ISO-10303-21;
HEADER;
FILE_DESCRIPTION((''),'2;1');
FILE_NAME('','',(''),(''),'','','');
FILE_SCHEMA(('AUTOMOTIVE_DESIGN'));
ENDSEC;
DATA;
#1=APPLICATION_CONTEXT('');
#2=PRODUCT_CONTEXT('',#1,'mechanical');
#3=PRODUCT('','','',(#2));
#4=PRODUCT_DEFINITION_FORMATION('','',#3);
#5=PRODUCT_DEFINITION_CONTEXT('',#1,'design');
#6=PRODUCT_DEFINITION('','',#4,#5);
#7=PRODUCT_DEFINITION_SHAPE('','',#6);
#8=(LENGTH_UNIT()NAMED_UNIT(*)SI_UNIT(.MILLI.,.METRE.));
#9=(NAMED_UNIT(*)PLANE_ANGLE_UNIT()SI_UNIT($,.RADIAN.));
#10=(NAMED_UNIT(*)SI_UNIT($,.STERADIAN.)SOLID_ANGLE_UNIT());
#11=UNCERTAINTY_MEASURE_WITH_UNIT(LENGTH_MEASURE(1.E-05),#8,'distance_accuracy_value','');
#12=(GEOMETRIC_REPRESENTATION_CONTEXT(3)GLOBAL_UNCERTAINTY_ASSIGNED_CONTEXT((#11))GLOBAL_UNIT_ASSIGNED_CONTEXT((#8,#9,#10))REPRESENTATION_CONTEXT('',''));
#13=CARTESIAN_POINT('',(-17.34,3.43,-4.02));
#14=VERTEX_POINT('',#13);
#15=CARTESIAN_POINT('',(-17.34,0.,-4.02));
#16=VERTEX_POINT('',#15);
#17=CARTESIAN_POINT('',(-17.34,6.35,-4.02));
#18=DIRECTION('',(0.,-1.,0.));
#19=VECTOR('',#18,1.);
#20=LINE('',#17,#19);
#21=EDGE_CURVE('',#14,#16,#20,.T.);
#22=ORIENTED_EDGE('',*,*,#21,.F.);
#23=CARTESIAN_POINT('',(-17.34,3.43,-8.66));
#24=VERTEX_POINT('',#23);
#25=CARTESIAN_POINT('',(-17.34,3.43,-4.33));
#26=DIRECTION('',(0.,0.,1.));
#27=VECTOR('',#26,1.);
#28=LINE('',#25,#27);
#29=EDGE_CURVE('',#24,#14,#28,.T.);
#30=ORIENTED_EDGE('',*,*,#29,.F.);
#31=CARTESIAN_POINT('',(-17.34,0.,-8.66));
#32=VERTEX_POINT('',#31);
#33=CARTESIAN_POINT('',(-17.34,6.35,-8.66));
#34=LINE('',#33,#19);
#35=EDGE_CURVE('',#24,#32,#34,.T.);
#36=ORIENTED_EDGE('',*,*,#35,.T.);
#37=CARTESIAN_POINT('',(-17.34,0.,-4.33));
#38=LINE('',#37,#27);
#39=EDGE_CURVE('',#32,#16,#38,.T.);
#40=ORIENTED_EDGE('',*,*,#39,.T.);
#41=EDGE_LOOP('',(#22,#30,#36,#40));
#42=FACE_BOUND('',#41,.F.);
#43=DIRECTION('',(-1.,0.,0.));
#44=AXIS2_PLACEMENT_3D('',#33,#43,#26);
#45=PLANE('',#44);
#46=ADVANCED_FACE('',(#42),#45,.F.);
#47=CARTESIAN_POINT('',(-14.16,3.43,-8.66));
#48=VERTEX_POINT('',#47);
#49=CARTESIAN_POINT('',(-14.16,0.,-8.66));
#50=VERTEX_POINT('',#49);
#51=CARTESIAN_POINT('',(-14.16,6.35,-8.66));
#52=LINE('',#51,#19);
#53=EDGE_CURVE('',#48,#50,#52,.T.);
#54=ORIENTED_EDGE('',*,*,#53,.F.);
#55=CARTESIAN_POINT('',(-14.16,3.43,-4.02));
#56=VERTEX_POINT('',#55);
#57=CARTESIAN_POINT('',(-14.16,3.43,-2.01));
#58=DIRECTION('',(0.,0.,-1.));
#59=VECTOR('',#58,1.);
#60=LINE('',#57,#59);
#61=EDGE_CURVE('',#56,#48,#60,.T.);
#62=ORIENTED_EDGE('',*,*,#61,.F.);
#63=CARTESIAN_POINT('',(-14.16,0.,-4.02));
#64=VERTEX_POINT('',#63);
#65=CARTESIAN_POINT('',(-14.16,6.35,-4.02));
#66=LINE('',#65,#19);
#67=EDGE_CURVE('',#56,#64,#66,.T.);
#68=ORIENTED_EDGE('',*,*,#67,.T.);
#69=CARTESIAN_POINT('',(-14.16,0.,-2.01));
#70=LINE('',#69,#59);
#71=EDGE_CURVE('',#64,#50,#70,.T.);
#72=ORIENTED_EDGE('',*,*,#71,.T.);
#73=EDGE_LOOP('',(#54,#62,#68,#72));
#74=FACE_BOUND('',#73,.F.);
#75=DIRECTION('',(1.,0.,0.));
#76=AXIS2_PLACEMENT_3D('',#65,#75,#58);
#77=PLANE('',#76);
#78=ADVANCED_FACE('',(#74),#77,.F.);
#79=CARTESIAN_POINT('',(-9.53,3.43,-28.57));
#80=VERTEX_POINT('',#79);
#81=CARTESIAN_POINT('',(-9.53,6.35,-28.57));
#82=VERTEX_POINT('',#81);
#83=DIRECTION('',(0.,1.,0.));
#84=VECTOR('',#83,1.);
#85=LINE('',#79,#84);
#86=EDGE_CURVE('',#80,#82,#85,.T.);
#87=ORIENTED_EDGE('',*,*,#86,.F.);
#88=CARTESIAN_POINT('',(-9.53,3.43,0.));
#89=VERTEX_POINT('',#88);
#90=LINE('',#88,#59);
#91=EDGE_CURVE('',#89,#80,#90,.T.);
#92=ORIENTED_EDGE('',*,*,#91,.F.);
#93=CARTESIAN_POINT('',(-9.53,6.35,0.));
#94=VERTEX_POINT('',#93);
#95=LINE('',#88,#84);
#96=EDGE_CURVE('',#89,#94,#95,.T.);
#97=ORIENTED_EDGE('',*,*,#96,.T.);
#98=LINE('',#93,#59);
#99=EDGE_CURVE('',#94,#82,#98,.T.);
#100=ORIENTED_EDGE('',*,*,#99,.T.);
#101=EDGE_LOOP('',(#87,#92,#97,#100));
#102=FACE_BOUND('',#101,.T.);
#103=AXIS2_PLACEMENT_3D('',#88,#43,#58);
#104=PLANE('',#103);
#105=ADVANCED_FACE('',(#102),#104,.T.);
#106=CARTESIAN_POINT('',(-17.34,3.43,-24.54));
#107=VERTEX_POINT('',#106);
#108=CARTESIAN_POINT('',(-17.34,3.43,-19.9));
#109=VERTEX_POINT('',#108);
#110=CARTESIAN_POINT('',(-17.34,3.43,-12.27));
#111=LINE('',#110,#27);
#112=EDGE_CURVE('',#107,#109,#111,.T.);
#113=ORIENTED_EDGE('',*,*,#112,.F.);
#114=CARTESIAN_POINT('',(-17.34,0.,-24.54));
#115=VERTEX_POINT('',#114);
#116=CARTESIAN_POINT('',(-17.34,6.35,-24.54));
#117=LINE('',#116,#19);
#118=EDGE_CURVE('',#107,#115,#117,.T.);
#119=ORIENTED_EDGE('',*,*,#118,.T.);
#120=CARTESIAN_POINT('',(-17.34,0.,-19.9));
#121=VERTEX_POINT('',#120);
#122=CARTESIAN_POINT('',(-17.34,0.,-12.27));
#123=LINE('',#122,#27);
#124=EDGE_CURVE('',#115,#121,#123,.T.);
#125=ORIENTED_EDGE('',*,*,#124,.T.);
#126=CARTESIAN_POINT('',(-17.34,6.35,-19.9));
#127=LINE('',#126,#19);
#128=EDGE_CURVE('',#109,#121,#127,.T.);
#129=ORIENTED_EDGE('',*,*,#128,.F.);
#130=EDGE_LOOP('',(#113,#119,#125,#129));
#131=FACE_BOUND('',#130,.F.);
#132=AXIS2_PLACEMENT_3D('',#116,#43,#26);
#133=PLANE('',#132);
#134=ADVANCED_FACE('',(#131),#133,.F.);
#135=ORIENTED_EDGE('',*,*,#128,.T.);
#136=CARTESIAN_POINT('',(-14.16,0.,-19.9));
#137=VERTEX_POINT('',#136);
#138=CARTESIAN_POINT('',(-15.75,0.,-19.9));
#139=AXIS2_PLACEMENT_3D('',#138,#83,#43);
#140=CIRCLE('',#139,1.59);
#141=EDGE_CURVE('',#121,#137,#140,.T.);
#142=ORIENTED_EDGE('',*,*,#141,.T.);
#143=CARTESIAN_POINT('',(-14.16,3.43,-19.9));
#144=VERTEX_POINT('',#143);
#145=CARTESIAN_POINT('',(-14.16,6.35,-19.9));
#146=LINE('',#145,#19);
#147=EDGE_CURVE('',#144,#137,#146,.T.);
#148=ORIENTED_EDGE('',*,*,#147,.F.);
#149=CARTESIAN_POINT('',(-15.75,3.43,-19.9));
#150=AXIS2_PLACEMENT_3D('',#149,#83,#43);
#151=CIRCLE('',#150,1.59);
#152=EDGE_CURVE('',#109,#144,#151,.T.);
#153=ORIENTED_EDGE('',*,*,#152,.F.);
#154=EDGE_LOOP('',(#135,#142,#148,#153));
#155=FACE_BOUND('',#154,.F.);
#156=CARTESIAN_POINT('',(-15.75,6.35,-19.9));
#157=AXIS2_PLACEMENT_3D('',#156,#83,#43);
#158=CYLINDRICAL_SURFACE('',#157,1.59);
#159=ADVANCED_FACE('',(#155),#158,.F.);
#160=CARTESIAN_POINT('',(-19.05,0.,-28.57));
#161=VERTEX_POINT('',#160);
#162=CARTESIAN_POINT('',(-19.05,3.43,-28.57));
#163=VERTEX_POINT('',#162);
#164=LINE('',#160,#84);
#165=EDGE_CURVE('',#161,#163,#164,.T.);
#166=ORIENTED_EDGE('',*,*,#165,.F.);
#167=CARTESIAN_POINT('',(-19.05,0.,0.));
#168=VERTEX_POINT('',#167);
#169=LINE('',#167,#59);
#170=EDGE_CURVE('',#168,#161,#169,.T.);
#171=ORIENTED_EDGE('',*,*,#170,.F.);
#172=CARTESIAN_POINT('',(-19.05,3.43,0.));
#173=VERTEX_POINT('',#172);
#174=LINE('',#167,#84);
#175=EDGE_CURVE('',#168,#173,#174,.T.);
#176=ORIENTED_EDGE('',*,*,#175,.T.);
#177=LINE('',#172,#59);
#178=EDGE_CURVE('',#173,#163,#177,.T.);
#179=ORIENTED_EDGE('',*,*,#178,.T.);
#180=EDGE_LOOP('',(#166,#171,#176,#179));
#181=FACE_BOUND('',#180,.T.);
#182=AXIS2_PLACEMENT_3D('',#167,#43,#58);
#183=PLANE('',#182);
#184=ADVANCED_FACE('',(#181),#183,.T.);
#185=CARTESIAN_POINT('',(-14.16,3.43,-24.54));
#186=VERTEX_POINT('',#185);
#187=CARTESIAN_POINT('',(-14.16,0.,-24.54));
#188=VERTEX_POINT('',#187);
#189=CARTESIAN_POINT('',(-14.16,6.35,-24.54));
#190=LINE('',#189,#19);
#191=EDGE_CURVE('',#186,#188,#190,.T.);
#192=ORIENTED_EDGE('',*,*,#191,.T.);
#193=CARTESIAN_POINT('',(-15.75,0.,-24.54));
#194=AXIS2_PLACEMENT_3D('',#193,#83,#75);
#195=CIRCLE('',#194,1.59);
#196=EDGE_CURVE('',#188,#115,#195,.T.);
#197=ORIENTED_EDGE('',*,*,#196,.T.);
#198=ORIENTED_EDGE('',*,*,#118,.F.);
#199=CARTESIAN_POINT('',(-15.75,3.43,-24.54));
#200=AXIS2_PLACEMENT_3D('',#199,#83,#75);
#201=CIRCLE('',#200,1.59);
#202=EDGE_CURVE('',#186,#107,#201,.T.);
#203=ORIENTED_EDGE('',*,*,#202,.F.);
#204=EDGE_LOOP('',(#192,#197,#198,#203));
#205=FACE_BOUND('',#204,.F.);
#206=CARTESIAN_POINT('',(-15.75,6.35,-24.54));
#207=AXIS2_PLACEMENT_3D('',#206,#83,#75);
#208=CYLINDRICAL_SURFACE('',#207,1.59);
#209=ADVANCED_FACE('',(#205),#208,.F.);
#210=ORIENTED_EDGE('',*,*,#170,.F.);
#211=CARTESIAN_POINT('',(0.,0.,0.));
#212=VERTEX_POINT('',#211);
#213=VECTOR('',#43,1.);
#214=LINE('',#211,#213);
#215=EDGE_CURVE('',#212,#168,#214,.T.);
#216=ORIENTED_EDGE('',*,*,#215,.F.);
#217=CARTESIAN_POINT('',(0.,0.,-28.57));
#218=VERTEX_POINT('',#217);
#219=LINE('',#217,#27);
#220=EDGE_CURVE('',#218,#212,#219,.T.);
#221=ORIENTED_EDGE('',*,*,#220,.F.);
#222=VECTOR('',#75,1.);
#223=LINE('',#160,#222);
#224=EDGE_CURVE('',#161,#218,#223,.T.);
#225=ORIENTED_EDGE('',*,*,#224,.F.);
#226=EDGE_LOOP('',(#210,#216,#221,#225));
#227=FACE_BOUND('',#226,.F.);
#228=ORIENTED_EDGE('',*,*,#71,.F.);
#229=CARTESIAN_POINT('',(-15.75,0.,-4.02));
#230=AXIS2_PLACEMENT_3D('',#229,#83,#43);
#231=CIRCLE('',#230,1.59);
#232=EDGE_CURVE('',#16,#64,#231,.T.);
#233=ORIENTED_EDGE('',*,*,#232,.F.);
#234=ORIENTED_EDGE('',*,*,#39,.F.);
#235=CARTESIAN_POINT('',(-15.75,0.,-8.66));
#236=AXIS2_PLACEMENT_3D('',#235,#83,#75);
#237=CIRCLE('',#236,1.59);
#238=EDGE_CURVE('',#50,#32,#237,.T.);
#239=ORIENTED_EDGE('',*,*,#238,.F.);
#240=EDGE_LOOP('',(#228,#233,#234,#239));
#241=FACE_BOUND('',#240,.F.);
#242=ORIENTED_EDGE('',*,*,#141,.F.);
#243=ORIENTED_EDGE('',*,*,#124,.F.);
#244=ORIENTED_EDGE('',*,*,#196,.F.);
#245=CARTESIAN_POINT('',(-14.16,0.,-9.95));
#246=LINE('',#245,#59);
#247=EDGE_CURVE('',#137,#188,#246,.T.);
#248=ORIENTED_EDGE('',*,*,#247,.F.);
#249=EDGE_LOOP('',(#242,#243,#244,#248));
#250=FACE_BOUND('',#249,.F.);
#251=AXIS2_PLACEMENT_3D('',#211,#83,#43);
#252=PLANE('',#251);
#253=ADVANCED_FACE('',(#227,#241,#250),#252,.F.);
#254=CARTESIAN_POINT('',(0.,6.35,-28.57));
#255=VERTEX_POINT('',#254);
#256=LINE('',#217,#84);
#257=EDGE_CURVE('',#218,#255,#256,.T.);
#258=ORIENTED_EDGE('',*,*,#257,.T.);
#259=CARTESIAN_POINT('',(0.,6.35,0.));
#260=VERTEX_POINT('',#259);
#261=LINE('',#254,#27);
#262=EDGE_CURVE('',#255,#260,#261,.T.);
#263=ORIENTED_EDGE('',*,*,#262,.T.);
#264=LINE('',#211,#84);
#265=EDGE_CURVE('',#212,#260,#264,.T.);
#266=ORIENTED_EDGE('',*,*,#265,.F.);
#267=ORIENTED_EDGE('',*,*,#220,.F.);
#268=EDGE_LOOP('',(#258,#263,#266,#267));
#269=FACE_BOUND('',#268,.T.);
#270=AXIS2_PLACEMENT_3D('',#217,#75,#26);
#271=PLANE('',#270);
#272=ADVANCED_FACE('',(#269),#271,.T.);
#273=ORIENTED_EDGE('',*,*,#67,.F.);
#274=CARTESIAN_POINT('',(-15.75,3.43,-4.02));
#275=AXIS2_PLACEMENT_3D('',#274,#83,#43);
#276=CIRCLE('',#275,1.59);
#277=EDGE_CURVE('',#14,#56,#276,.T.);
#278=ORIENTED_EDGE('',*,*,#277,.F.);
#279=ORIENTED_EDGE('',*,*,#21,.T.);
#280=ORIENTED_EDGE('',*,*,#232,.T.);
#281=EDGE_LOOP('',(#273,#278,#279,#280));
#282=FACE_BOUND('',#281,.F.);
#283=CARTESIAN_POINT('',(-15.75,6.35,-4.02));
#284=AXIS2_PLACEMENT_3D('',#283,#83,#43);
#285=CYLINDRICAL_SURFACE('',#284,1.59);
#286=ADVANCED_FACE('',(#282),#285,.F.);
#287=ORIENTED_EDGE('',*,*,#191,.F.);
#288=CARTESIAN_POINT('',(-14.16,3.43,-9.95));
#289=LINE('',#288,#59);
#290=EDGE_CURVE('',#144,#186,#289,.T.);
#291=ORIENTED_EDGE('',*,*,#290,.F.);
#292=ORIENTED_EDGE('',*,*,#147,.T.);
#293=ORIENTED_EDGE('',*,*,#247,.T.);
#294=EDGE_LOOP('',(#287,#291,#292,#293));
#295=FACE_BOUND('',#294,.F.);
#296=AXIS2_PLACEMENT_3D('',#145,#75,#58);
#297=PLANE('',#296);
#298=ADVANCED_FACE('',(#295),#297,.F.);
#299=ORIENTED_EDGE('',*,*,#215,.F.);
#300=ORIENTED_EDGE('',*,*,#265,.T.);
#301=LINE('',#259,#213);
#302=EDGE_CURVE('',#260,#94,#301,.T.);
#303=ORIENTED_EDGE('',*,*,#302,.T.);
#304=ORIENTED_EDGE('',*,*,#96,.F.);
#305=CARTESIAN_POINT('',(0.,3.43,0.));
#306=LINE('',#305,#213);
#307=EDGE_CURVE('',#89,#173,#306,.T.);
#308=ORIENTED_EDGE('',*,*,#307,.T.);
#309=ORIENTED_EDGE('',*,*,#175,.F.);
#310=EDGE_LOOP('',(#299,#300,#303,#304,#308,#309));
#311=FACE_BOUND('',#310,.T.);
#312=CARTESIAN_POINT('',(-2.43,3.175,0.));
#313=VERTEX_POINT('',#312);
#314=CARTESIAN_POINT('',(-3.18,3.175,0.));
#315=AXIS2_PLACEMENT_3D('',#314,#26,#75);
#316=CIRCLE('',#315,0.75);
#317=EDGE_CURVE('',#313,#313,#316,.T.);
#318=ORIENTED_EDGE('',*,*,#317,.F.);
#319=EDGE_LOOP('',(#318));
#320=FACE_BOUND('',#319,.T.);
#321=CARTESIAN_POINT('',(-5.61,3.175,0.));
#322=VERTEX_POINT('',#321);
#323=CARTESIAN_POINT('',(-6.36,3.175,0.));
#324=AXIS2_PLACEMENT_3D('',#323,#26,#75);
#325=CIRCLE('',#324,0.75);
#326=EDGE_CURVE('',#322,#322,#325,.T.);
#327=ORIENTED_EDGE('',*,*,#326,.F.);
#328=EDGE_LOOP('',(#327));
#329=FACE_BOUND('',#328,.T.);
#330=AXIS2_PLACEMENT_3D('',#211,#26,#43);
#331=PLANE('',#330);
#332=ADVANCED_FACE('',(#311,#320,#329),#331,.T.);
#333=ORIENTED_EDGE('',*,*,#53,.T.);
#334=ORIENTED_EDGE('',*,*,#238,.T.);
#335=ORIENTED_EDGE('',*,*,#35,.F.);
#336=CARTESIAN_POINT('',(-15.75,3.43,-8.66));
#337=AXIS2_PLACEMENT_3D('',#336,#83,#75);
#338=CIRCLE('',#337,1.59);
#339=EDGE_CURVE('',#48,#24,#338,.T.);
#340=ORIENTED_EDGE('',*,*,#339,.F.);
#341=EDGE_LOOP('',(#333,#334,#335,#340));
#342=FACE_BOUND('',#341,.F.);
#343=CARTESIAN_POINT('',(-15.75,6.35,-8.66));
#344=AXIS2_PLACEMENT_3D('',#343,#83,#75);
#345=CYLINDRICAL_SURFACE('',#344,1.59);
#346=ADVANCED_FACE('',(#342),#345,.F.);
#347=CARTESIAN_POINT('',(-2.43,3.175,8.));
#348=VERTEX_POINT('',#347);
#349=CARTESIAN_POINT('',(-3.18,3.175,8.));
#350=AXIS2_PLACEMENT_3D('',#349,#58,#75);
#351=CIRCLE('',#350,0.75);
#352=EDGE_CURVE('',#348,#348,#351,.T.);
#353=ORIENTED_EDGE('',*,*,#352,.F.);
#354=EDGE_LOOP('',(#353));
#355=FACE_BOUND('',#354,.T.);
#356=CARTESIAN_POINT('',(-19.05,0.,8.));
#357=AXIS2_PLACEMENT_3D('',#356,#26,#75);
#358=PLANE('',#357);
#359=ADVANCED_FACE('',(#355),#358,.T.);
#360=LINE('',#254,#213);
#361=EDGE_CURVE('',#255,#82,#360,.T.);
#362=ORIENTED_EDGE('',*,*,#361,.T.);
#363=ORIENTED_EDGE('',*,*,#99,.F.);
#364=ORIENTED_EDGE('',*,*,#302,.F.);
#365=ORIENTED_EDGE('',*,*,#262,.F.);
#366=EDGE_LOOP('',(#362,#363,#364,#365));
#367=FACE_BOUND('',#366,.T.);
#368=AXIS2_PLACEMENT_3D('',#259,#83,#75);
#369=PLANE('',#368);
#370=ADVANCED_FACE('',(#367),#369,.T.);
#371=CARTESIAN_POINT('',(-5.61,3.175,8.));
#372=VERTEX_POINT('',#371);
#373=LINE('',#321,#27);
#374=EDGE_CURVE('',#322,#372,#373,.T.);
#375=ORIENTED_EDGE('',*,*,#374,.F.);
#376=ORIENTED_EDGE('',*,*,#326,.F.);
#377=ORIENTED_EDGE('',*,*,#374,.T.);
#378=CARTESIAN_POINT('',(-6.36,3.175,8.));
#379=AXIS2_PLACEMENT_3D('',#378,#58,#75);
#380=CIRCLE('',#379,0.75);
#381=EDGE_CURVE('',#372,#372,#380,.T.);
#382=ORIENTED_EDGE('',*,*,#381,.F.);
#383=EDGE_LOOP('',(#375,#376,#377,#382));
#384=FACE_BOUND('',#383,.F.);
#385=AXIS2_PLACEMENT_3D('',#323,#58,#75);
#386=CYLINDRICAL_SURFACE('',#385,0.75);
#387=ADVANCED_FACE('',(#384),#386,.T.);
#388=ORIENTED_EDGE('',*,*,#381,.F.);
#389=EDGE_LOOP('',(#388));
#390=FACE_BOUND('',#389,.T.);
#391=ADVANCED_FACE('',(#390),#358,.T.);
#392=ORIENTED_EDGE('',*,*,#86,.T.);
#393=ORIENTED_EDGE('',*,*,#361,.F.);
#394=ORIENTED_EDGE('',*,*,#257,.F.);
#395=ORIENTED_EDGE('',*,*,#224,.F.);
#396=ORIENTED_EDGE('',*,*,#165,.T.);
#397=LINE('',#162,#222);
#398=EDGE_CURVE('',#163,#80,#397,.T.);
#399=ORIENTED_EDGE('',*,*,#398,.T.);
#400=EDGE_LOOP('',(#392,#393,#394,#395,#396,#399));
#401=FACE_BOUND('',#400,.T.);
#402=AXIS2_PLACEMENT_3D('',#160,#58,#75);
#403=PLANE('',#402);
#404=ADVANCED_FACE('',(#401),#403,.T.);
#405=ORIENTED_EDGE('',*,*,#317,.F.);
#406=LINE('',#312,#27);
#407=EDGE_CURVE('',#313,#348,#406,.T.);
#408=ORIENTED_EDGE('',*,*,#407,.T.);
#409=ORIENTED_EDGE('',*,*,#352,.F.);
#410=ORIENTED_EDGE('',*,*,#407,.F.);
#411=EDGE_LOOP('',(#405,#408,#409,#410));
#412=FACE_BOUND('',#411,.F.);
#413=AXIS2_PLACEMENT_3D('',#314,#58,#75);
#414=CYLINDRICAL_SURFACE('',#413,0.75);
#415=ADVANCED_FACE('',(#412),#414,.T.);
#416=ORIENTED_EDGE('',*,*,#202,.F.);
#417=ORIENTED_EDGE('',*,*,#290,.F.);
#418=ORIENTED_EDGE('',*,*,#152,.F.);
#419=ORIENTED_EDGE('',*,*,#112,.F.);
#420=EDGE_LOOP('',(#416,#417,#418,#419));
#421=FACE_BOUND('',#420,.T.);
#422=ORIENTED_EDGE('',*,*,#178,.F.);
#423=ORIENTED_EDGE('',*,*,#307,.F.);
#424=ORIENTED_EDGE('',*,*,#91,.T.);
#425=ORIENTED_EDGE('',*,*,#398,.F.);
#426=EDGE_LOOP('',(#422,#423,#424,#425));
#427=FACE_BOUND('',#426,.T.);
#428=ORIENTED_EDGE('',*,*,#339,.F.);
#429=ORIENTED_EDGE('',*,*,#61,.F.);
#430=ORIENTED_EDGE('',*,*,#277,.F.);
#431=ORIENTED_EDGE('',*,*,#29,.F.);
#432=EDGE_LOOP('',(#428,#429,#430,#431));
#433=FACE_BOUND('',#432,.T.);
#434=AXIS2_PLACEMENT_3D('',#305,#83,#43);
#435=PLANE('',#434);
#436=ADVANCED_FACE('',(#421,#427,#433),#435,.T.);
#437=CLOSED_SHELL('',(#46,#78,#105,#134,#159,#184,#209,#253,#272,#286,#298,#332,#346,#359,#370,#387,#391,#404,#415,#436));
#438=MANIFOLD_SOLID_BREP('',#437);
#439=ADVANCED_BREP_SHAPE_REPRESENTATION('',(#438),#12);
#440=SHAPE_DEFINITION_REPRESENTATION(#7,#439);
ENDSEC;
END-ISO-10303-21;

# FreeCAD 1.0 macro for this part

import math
import FreeCAD as App
import Part
import Sketcher
from FreeCAD import Vector


def add_polygon(sketch, points):
    """Adds a closed chain of lines whose ends are joined by coincident constraints."""
    first, n = sketch.GeometryCount, len(points)
    for a, b in zip(points, points[1:] + points[:1]):
        sketch.addGeometry(Part.LineSegment(App.Vector(*a, 0), App.Vector(*b, 0)), False)
    for i in range(n):
        sketch.addConstraint(Sketcher.Constraint("Coincident", first + i, 2, first + (i + 1) % n, 1))

doc = App.newDocument("Part")
params = doc.addObject("Spreadsheet::Sheet", "Params")
for row, (alias, value) in enumerate([
    ("sketch1_width", "19.05 mm"),
    ("sketch1_height", "28.57 mm"),
    ("pad1_length", "3.43 mm"),
    ("sketch2_width", "9.53 mm"),
    ("sketch2_height", "28.57 mm"),
    ("pad2_length", "2.92 mm"),
    ("sketch3_radius", "1.59 mm"),
    ("sketch3_height", "4.64 mm"),
    ("sketch4_diameter", "1.5 mm"),
    ("pad3_length", "8 mm"),
], start=1):
    params.set(f"A{row}", alias)
    params.set(f"B{row}", "=" + value)
    params.setAlias(f"B{row}", alias)

body = doc.addObject("PartDesign::Body", "Body")

sketch1 = body.newObject("Sketcher::SketchObject", "Sketch")
sketch1.AttachmentSupport = (doc.getObject("XZ_Plane"), [""])
sketch1.MapMode = "FlatFace"
add_polygon(sketch1, [(-19, 0), (0, 0), (0, -29), (-19, -29)])
sketch1.addConstraint([
    Sketcher.Constraint("Horizontal", 0),
    Sketcher.Constraint("Vertical", 1),
    Sketcher.Constraint("Horizontal", 2),
    Sketcher.Constraint("Vertical", 3),
    Sketcher.Constraint("Coincident", 0, 2, -1, 1),
    Sketcher.Constraint("DistanceX", 0, 1, 0, 2, 19.05),
    Sketcher.Constraint("DistanceY", 1, 2, 1, 1, 28.57),
])
sketch1.setExpression("Constraints[9]", "Params.sketch1_width")
sketch1.setExpression("Constraints[10]", "Params.sketch1_height")
pad1 = body.newObject("PartDesign::Pad", "Pad")
pad1.Profile = sketch1
pad1.setExpression("Length", "Params.pad1_length")
pad1.Reversed = True

sketch2 = body.newObject("Sketcher::SketchObject", "Sketch001")
sketch2.AttachmentSupport = (doc.getObject("XZ_Plane"), [""])
sketch2.MapMode = "FlatFace"
sketch2.AttachmentOffset = App.Placement(Vector(0, 0, -3.43), App.Rotation())
add_polygon(sketch2, [(0, 0), (0, -29), (-10, -29), (-10, 0)])
sketch2.addConstraint([
    Sketcher.Constraint("Vertical", 0),
    Sketcher.Constraint("Horizontal", 1),
    Sketcher.Constraint("Vertical", 2),
    Sketcher.Constraint("Horizontal", 3),
    Sketcher.Constraint("Coincident", 3, 2, -1, 1),
    Sketcher.Constraint("DistanceX", 1, 2, 1, 1, 9.53),
    Sketcher.Constraint("DistanceY", 0, 2, 0, 1, 28.57),
])
sketch2.setExpression("Constraints[9]", "Params.sketch2_width")
sketch2.setExpression("Constraints[10]", "Params.sketch2_height")
pad2 = body.newObject("PartDesign::Pad", "Pad001")
pad2.Profile = sketch2
pad2.setExpression("Length", "Params.pad2_length")
pad2.Reversed = True

sketch3 = body.newObject("Sketcher::SketchObject", "Sketch002")
sketch3.AttachmentSupport = (doc.getObject("XZ_Plane"), [""])
sketch3.MapMode = "FlatFace"
sketch3.AttachmentOffset = App.Placement(Vector(0, 0, -6.35), App.Rotation())
sketch3.addGeometry([
    Part.ArcOfCircle(Part.Circle(Vector(-15.8, -4, 0), Vector(0, 0, 1), 1.6), math.radians(0), math.radians(180)),
    Part.LineSegment(Vector(-14.2, -4, 0), Vector(-14.2, -8.7, 0)),
    Part.ArcOfCircle(Part.Circle(Vector(-15.8, -8.7, 0), Vector(0, 0, 1), 1.6), math.radians(180), math.radians(360)),
    Part.LineSegment(Vector(-17.3, -8.7, 0), Vector(-17.3, -4, 0)),
    Part.ArcOfCircle(Part.Circle(Vector(-15.8, -19.9, 0), Vector(0, 0, 1), 1.6), math.radians(0), math.radians(180)),
    Part.LineSegment(Vector(-14.2, -19.9, 0), Vector(-14.2, -24.5, 0)),
    Part.ArcOfCircle(Part.Circle(Vector(-15.8, -24.5, 0), Vector(0, 0, 1), 1.6), math.radians(180), math.radians(360)),
    Part.LineSegment(Vector(-17.3, -24.5, 0), Vector(-17.3, -19.9, 0)),
], False)
sketch3.addConstraint([
    Sketcher.Constraint("Tangent", 0, 1, 1, 1),
    Sketcher.Constraint("Tangent", 1, 2, 2, 2),
    Sketcher.Constraint("Tangent", 2, 1, 3, 1),
    Sketcher.Constraint("Tangent", 3, 2, 0, 2),
    Sketcher.Constraint("Tangent", 4, 1, 5, 1),
    Sketcher.Constraint("Tangent", 5, 2, 6, 2),
    Sketcher.Constraint("Tangent", 6, 1, 7, 1),
    Sketcher.Constraint("Tangent", 7, 2, 4, 2),
    Sketcher.Constraint("Vertical", 1),
    Sketcher.Constraint("Vertical", 3),
    Sketcher.Constraint("Vertical", 5),
    Sketcher.Constraint("Vertical", 7),
    Sketcher.Constraint("Equal", 2, 4),
    Sketcher.Constraint("Vertical", 2, 3, 4, 3),
    Sketcher.Constraint("Equal", 3, 5),
    Sketcher.Constraint("Radius", 0, 1.59),
    Sketcher.Constraint("DistanceY", 1, 2, 1, 1, 4.64),
    Sketcher.Constraint("DistanceY", 4, 3, 0, 3, 15.88),
    Sketcher.Constraint("DistanceY", 4, 3, -1, 1, 19.9),
    Sketcher.Constraint("DistanceX", 0, 3, -1, 1, 15.75),
])
sketch3.setExpression("Constraints[15]", "Params.sketch3_radius")
sketch3.setExpression("Constraints[16]", "Params.sketch3_height")
pocket1 = body.newObject("PartDesign::Pocket", "Pocket")
pocket1.Profile = sketch3
pocket1.Type = "ThroughAll"
pocket1.Reversed = True

sketch4 = body.newObject("Sketcher::SketchObject", "Sketch003")
sketch4.AttachmentSupport = (doc.getObject("XY_Plane"), [""])
sketch4.MapMode = "FlatFace"
sketch4.addGeometry([
    Part.Circle(Vector(-6.4, 3.2, 0), Vector(0, 0, 1), 0.8),
    Part.Circle(Vector(-3.2, 3.2, 0), Vector(0, 0, 1), 0.8),
], False)
sketch4.addConstraint([
    Sketcher.Constraint("Equal", 0, 1),
    Sketcher.Constraint("Horizontal", 0, 3, 1, 3),
    Sketcher.Constraint("Diameter", 0, 1.5),
    Sketcher.Constraint("DistanceX", 1, 3, -1, 1, 3.18),
    Sketcher.Constraint("DistanceX", 0, 3, 1, 3, 3.18),
    Sketcher.Constraint("DistanceY", -1, 1, 0, 3, 3.175),
])
sketch4.setExpression("Constraints[2]", "Params.sketch4_diameter")
pad3 = body.newObject("PartDesign::Pad", "Pad002")
pad3.Profile = sketch4
pad3.setExpression("Length", "Params.pad3_length")

doc.recompute()
